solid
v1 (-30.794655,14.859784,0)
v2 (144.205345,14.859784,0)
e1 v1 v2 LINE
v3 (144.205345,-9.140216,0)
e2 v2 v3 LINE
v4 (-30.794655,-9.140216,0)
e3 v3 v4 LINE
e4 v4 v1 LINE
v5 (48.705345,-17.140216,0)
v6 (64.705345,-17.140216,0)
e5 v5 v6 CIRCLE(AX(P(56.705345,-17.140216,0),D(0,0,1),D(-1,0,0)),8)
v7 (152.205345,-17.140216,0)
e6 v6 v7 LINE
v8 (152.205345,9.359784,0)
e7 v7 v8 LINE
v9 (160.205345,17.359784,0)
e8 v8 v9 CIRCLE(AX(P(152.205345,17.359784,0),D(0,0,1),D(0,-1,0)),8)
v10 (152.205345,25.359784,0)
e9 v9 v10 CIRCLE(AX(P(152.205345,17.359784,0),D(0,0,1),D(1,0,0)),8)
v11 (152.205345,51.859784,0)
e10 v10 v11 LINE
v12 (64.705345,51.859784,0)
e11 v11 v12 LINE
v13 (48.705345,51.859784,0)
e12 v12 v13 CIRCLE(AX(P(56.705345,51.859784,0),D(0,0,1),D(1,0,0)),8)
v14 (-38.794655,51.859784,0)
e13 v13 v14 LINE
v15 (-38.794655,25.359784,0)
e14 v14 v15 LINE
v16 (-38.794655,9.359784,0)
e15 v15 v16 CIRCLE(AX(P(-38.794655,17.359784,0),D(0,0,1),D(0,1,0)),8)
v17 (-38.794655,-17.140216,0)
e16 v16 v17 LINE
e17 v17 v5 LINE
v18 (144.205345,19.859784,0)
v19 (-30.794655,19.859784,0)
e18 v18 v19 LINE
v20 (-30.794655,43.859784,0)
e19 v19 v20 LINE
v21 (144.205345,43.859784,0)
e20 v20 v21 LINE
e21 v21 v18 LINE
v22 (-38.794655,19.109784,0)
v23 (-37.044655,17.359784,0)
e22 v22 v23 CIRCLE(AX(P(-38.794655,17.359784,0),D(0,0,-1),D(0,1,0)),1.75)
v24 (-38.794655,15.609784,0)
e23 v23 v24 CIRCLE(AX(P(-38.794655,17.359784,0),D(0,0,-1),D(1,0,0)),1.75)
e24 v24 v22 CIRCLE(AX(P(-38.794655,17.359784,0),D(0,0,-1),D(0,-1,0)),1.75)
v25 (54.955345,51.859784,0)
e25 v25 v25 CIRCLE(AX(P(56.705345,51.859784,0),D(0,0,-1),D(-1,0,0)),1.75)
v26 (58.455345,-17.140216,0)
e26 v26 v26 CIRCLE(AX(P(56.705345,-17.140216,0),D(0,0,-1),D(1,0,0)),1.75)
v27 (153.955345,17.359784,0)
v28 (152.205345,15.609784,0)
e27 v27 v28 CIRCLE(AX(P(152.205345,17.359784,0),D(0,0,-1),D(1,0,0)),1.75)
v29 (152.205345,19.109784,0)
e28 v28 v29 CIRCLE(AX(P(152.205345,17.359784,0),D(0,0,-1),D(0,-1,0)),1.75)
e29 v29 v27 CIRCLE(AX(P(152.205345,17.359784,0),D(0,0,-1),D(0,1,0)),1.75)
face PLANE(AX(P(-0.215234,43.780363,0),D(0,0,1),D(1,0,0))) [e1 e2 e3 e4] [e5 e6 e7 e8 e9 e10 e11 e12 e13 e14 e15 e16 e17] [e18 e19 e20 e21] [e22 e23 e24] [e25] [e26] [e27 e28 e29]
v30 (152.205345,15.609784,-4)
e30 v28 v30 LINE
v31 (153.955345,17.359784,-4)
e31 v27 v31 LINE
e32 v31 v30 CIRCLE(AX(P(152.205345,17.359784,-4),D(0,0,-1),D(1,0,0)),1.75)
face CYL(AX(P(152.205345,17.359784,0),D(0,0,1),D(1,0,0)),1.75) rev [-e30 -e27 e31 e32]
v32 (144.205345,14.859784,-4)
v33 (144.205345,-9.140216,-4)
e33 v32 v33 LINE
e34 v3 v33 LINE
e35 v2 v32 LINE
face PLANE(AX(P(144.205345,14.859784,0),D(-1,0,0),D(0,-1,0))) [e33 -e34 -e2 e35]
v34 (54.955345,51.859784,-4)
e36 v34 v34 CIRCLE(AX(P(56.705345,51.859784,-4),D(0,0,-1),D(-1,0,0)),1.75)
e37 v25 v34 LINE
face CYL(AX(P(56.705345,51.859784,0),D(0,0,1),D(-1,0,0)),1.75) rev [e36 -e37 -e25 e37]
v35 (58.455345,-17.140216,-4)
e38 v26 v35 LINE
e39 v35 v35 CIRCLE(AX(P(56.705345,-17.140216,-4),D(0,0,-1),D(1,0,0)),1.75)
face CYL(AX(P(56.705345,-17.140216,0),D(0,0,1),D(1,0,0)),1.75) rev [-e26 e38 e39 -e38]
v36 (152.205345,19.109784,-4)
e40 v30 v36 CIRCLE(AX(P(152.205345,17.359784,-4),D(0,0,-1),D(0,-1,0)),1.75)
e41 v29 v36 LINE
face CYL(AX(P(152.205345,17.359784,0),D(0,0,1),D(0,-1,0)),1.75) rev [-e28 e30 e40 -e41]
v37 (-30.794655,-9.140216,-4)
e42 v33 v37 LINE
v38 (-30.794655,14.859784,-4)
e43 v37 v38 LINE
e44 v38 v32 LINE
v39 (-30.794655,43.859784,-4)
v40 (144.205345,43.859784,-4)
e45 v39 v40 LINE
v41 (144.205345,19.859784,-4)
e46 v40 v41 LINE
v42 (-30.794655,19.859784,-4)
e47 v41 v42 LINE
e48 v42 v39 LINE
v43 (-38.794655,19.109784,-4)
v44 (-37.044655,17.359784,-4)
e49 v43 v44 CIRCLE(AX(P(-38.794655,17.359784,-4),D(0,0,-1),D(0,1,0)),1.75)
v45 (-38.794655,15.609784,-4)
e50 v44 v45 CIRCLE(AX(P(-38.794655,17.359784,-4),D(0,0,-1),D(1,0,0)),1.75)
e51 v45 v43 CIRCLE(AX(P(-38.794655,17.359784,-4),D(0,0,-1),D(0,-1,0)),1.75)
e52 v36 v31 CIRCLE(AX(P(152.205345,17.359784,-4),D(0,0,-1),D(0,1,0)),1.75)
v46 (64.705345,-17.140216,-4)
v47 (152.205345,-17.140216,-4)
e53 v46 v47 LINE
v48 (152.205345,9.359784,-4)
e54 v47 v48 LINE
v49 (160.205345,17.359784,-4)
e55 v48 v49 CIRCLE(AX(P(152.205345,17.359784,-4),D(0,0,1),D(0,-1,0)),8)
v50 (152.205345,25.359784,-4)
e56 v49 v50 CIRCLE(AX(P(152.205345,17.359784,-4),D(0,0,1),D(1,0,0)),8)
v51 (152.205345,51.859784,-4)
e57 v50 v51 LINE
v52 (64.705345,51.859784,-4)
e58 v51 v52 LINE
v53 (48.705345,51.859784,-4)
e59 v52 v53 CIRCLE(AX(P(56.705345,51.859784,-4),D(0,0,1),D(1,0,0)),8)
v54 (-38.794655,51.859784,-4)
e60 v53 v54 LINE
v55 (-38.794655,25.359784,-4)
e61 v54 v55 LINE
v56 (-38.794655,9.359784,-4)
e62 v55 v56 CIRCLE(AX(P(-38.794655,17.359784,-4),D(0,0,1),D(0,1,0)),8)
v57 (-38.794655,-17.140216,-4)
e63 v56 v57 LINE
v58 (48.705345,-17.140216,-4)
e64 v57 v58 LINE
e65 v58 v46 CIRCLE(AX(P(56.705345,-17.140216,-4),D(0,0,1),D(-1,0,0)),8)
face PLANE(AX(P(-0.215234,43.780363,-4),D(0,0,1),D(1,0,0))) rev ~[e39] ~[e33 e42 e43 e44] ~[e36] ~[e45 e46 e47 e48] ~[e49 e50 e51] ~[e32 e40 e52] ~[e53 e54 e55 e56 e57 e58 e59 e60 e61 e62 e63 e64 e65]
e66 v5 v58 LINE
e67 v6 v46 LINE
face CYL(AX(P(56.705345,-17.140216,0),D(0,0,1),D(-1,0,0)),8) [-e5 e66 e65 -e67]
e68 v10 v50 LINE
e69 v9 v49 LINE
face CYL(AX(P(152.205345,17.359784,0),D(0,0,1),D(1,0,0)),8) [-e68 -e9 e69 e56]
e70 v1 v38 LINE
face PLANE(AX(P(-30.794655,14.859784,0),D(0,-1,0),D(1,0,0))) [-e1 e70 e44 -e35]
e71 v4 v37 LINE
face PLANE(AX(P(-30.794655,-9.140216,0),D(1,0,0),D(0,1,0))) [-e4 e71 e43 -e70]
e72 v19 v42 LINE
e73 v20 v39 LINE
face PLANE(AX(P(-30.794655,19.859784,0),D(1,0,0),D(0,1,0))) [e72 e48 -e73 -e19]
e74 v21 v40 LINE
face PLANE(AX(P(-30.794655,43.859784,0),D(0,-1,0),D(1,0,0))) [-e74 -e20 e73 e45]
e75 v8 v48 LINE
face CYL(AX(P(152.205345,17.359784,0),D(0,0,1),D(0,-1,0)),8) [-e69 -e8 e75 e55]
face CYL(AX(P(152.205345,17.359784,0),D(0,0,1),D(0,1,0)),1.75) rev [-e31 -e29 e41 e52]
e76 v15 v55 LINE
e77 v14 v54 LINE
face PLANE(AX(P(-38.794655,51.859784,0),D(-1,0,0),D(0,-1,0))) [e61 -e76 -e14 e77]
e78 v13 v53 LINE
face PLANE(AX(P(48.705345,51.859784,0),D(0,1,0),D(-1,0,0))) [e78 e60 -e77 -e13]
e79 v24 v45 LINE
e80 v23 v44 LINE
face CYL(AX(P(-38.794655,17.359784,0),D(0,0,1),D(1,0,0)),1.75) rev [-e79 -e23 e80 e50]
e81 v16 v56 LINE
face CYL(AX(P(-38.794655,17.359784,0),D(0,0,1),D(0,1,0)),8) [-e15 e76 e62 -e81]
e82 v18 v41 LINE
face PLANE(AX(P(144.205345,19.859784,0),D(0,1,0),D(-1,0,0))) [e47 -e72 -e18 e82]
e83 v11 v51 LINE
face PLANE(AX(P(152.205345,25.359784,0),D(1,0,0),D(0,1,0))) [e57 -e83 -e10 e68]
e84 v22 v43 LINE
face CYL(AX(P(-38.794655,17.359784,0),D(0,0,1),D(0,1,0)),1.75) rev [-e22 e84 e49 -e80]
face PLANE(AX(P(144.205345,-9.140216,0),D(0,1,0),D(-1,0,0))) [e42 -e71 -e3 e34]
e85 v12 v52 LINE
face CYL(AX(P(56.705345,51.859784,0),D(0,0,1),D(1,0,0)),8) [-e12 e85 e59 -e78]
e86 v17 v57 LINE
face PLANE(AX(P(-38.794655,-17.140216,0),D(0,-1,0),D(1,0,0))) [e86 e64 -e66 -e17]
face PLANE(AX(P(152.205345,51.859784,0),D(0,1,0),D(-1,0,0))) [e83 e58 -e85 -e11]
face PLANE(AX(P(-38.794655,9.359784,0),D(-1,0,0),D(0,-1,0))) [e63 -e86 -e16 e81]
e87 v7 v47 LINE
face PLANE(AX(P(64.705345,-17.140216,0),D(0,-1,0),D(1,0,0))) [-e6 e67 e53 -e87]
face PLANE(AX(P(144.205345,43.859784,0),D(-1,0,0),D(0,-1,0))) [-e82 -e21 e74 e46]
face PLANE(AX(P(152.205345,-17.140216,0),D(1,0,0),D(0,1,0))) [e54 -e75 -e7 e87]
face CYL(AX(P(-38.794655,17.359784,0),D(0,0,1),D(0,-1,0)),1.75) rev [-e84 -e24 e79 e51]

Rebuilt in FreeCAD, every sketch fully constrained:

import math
import FreeCAD as App
import Part
import Sketcher

V = App.Vector
Q = App.Units.Quantity


def add_polygon(sketch, points):
    """Adds a closed chain of lines whose ends are joined by coincident constraints."""
    first, n = sketch.GeometryCount, len(points)
    for a, b in zip(points, points[1:] + points[:1]):
        sketch.addGeometry(Part.LineSegment(App.Vector(*a, 0), App.Vector(*b, 0)), False)
    for i in range(n):
        sketch.addConstraint(Sketcher.Constraint("Coincident", first + i, 2, first + (i + 1) % n, 1))

doc = App.newDocument("Part")
params = doc.addObject("Spreadsheet::Sheet", "Params")
for row, (alias, value) in enumerate([
    ("sketch1_radius", "8 mm"),
    ("sketch1_diameter", "3.5 mm"),
    ("sketch1_width", "175 mm"),
    ("sketch1_height", "24 mm"),
    ("sketch1_width2", "87.5 mm"),
    ("pad1_length", "4 mm"),
], start=1):
    params.set(f"A{row}", alias)
    params.set(f"B{row}", "=" + value)
    params.setAlias(f"B{row}", alias)

body = doc.addObject("PartDesign::Body", "Body")

# Sketch on XY plane
sketch1 = body.newObject("Sketcher::SketchObject", "Sketch")
sketch1.AttachmentSupport = (doc.getObject("XY_Plane"), [""])
sketch1.MapMode = "FlatFace"
sketch1.addGeometry(Part.LineSegment(V(-38.794655, -17.140216, 0), V(48.705345, -17.140216, 0)), False)  # 0
sketch1.addGeometry(Part.ArcOfCircle(Part.Circle(V(56.705345, -17.140216, 0), V(0, 0, 1), 8), math.radians(180), math.radians(360)), False)  # 1
sketch1.addGeometry(Part.LineSegment(V(64.705345, -17.140216, 0), V(152.205345, -17.140216, 0)), False)  # 2
sketch1.addGeometry(Part.LineSegment(V(152.205345, -17.140216, 0), V(152.205345, 9.359784, 0)), False)  # 3
sketch1.addGeometry(Part.ArcOfCircle(Part.Circle(V(152.205345, 17.359784, 0), V(0, 0, 1), 8), math.radians(-90), math.radians(0)), False)  # 4
sketch1.addGeometry(Part.ArcOfCircle(Part.Circle(V(152.205345, 17.359784, 0), V(0, 0, 1), 8), math.radians(0), math.radians(90)), False)  # 5
sketch1.addGeometry(Part.LineSegment(V(152.205345, 25.359784, 0), V(152.205345, 51.859784, 0)), False)  # 6
sketch1.addGeometry(Part.LineSegment(V(152.205345, 51.859784, 0), V(64.705345, 51.859784, 0)), False)  # 7
sketch1.addGeometry(Part.ArcOfCircle(Part.Circle(V(56.705345, 51.859784, 0), V(0, 0, 1), 8), math.radians(0), math.radians(180)), False)  # 8
sketch1.addGeometry(Part.LineSegment(V(48.705345, 51.859784, 0), V(-38.794655, 51.859784, 0)), False)  # 9
sketch1.addGeometry(Part.LineSegment(V(-38.794655, 51.859784, 0), V(-38.794655, 25.359784, 0)), False)  # 10
sketch1.addGeometry(Part.ArcOfCircle(Part.Circle(V(-38.794655, 17.359784, 0), V(0, 0, 1), 8), math.radians(90), math.radians(270)), False)  # 11
sketch1.addGeometry(Part.LineSegment(V(-38.794655, 9.359784, 0), V(-38.794655, -17.140216, 0)), False)  # 12
sketch1.addGeometry(Part.Circle(V(56.705345, -17.140216, 0), V(0, 0, 1), 1.75), False)  # 13
sketch1.addGeometry(Part.ArcOfCircle(Part.Circle(V(-38.794655, 17.359784, 0), V(0, 0, 1), 1.75), math.radians(0), math.radians(90)), False)  # 14
sketch1.addGeometry(Part.ArcOfCircle(Part.Circle(V(-38.794655, 17.359784, 0), V(0, 0, 1), 1.75), math.radians(-90), math.radians(0)), False)  # 15
sketch1.addGeometry(Part.ArcOfCircle(Part.Circle(V(-38.794655, 17.359784, 0), V(0, 0, 1), 1.75), math.radians(90), math.radians(270)), False)  # 16
add_polygon(sketch1, [(144.205345, -9.140216), (-30.794655, -9.140216), (-30.794655, 14.859784), (144.205345, 14.859784)])  # lines 17-20
add_polygon(sketch1, [(-30.794655, 19.859784), (-30.794655, 43.859784), (144.205345, 43.859784), (144.205345, 19.859784)])  # lines 21-24
sketch1.addGeometry(Part.ArcOfCircle(Part.Circle(V(152.205345, 17.359784, 0), V(0, 0, 1), 1.75), math.radians(90), math.radians(270)), False)  # 25
sketch1.addGeometry(Part.ArcOfCircle(Part.Circle(V(152.205345, 17.359784, 0), V(0, 0, 1), 1.75), math.radians(0), math.radians(90)), False)  # 26
sketch1.addGeometry(Part.ArcOfCircle(Part.Circle(V(152.205345, 17.359784, 0), V(0, 0, 1), 1.75), math.radians(-90), math.radians(0)), False)  # 27
sketch1.addGeometry(Part.Circle(V(56.705345, 51.859784, 0), V(0, 0, 1), 1.75), False)  # 28
sketch1.addConstraint([
    Sketcher.Constraint("Coincident", 0, 2, 1, 1),
    Sketcher.Constraint("Coincident", 1, 2, 2, 1),
    Sketcher.Constraint("Coincident", 2, 2, 3, 1),
    Sketcher.Constraint("Coincident", 3, 2, 4, 1),
    Sketcher.Constraint("Tangent", 4, 2, 5, 1),
    Sketcher.Constraint("Coincident", 5, 2, 6, 1),
    Sketcher.Constraint("Coincident", 6, 2, 7, 1),
    Sketcher.Constraint("Coincident", 7, 2, 8, 1),
    Sketcher.Constraint("Coincident", 8, 2, 9, 1),
    Sketcher.Constraint("Coincident", 9, 2, 10, 1),
    Sketcher.Constraint("Coincident", 10, 2, 11, 1),
    Sketcher.Constraint("Coincident", 11, 2, 12, 1),
    Sketcher.Constraint("Coincident", 12, 2, 0, 1),
    Sketcher.Constraint("Tangent", 14, 1, 15, 2),
    Sketcher.Constraint("Tangent", 15, 1, 16, 2),
    Sketcher.Constraint("Tangent", 16, 1, 14, 2),
    Sketcher.Constraint("Tangent", 25, 1, 26, 2),
    Sketcher.Constraint("Tangent", 26, 1, 27, 2),
    Sketcher.Constraint("Tangent", 27, 1, 25, 2),
    Sketcher.Constraint("Horizontal", 0),
    Sketcher.Constraint("Horizontal", 2),
    Sketcher.Constraint("Vertical", 3),
    Sketcher.Constraint("Vertical", 6),
    Sketcher.Constraint("Horizontal", 7),
    Sketcher.Constraint("Horizontal", 9),
    Sketcher.Constraint("Vertical", 10),
    Sketcher.Constraint("Vertical", 12),
    Sketcher.Constraint("Horizontal", 17),
    Sketcher.Constraint("Vertical", 18),
    Sketcher.Constraint("Horizontal", 19),
    Sketcher.Constraint("Vertical", 20),
    Sketcher.Constraint("Vertical", 21),
    Sketcher.Constraint("Horizontal", 22),
    Sketcher.Constraint("Vertical", 23),
    Sketcher.Constraint("Horizontal", 24),
    Sketcher.Constraint("Coincident", 13, 3, 1, 3),
    Sketcher.Constraint("Coincident", 14, 3, 11, 3),
    Sketcher.Constraint("Coincident", 25, 3, 4, 3),
    Sketcher.Constraint("Coincident", 28, 3, 8, 3),
    Sketcher.Constraint("Equal", 1, 4),
    Sketcher.Constraint("Equal", 4, 5),
    Sketcher.Constraint("Equal", 5, 8),
    Sketcher.Constraint("Equal", 8, 11),
    Sketcher.Constraint("Equal", 13, 14),
    Sketcher.Constraint("Equal", 16, 25),
    Sketcher.Constraint("Equal", 27, 28),
    Sketcher.Constraint("Horizontal", 5, 3, 11, 3),
    Sketcher.Constraint("Horizontal", 13, 3, 0, 2),
    Sketcher.Constraint("Horizontal", 0, 2, 1, 2),
    Sketcher.Constraint("Horizontal", 27, 3, 4, 2),
    Sketcher.Constraint("Horizontal", 28, 3, 6, 2),
    Sketcher.Constraint("Horizontal", 7, 2, 8, 2),
    Sketcher.Constraint("Horizontal", 4, 2, 14, 1),
    Sketcher.Constraint("Horizontal", 14, 1, 26, 1),
    Sketcher.Constraint("Vertical", 1, 3, 8, 3),
    Sketcher.Constraint("Vertical", 27, 3, 2, 2),
    Sketcher.Constraint("Vertical", 3, 2, 5, 2),
    Sketcher.Constraint("Vertical", 16, 3, 9, 2),
    Sketcher.Constraint("Vertical", 10, 2, 11, 2),
    Sketcher.Constraint("Vertical", 12, 2, 15, 1),
    Sketcher.Constraint("Vertical", 15, 1, 16, 1),
    Sketcher.Constraint("Vertical", 18, 2, 21, 2),
    Sketcher.Constraint("Vertical", 20, 2, 22, 2),
    Sketcher.Constraint("Vertical", 6, 2, 25, 1),
    Sketcher.Constraint("Vertical", 25, 1, 27, 1),
    Sketcher.Constraint("Equal", 0, 2),
    Sketcher.Constraint("Equal", 3, 6),
    Sketcher.Constraint("Equal", 20, 21),
    Sketcher.Constraint("Radius", 1, Q("8 mm")),
    Sketcher.Constraint("Diameter", 13, Q("3.5 mm")),
    Sketcher.Constraint("DistanceX", 17, 2, 17, 1, Q("175 mm")),
    Sketcher.Constraint("DistanceY", 18, 1, 18, 2, Q("24 mm")),
    Sketcher.Constraint("DistanceX", 0, 1, 0, 2, Q("87.5 mm")),
    Sketcher.Constraint("DistanceY", 3, 1, 3, 2, Q("26.5 mm")),
    Sketcher.Constraint("DistanceX", 12, 2, 17, 2, Q("8 mm")),
    Sketcher.Constraint("DistanceY", 12, 2, 17, 2, Q("8 mm")),
    Sketcher.Constraint("DistanceY", 21, 2, 9, 2, Q("8 mm")),
    Sketcher.Constraint("DistanceX", -1, 1, 1, 3, Q("56.705345 mm")),
    Sketcher.Constraint("DistanceY", 1, 3, -1, 1, Q("17.140216 mm")),
])
sketch1.setExpression("Constraints[76]", "Params.sketch1_radius")
sketch1.setExpression("Constraints[77]", "Params.sketch1_diameter")
sketch1.setExpression("Constraints[78]", "Params.sketch1_width")
sketch1.setExpression("Constraints[79]", "Params.sketch1_height")
sketch1.setExpression("Constraints[80]", "Params.sketch1_width2")
pad1 = body.newObject("PartDesign::Pad", "Pad")
pad1.Profile = sketch1
pad1.setExpression("Length", "Params.pad1_length")
pad1.Reversed = True

doc.recompute()
